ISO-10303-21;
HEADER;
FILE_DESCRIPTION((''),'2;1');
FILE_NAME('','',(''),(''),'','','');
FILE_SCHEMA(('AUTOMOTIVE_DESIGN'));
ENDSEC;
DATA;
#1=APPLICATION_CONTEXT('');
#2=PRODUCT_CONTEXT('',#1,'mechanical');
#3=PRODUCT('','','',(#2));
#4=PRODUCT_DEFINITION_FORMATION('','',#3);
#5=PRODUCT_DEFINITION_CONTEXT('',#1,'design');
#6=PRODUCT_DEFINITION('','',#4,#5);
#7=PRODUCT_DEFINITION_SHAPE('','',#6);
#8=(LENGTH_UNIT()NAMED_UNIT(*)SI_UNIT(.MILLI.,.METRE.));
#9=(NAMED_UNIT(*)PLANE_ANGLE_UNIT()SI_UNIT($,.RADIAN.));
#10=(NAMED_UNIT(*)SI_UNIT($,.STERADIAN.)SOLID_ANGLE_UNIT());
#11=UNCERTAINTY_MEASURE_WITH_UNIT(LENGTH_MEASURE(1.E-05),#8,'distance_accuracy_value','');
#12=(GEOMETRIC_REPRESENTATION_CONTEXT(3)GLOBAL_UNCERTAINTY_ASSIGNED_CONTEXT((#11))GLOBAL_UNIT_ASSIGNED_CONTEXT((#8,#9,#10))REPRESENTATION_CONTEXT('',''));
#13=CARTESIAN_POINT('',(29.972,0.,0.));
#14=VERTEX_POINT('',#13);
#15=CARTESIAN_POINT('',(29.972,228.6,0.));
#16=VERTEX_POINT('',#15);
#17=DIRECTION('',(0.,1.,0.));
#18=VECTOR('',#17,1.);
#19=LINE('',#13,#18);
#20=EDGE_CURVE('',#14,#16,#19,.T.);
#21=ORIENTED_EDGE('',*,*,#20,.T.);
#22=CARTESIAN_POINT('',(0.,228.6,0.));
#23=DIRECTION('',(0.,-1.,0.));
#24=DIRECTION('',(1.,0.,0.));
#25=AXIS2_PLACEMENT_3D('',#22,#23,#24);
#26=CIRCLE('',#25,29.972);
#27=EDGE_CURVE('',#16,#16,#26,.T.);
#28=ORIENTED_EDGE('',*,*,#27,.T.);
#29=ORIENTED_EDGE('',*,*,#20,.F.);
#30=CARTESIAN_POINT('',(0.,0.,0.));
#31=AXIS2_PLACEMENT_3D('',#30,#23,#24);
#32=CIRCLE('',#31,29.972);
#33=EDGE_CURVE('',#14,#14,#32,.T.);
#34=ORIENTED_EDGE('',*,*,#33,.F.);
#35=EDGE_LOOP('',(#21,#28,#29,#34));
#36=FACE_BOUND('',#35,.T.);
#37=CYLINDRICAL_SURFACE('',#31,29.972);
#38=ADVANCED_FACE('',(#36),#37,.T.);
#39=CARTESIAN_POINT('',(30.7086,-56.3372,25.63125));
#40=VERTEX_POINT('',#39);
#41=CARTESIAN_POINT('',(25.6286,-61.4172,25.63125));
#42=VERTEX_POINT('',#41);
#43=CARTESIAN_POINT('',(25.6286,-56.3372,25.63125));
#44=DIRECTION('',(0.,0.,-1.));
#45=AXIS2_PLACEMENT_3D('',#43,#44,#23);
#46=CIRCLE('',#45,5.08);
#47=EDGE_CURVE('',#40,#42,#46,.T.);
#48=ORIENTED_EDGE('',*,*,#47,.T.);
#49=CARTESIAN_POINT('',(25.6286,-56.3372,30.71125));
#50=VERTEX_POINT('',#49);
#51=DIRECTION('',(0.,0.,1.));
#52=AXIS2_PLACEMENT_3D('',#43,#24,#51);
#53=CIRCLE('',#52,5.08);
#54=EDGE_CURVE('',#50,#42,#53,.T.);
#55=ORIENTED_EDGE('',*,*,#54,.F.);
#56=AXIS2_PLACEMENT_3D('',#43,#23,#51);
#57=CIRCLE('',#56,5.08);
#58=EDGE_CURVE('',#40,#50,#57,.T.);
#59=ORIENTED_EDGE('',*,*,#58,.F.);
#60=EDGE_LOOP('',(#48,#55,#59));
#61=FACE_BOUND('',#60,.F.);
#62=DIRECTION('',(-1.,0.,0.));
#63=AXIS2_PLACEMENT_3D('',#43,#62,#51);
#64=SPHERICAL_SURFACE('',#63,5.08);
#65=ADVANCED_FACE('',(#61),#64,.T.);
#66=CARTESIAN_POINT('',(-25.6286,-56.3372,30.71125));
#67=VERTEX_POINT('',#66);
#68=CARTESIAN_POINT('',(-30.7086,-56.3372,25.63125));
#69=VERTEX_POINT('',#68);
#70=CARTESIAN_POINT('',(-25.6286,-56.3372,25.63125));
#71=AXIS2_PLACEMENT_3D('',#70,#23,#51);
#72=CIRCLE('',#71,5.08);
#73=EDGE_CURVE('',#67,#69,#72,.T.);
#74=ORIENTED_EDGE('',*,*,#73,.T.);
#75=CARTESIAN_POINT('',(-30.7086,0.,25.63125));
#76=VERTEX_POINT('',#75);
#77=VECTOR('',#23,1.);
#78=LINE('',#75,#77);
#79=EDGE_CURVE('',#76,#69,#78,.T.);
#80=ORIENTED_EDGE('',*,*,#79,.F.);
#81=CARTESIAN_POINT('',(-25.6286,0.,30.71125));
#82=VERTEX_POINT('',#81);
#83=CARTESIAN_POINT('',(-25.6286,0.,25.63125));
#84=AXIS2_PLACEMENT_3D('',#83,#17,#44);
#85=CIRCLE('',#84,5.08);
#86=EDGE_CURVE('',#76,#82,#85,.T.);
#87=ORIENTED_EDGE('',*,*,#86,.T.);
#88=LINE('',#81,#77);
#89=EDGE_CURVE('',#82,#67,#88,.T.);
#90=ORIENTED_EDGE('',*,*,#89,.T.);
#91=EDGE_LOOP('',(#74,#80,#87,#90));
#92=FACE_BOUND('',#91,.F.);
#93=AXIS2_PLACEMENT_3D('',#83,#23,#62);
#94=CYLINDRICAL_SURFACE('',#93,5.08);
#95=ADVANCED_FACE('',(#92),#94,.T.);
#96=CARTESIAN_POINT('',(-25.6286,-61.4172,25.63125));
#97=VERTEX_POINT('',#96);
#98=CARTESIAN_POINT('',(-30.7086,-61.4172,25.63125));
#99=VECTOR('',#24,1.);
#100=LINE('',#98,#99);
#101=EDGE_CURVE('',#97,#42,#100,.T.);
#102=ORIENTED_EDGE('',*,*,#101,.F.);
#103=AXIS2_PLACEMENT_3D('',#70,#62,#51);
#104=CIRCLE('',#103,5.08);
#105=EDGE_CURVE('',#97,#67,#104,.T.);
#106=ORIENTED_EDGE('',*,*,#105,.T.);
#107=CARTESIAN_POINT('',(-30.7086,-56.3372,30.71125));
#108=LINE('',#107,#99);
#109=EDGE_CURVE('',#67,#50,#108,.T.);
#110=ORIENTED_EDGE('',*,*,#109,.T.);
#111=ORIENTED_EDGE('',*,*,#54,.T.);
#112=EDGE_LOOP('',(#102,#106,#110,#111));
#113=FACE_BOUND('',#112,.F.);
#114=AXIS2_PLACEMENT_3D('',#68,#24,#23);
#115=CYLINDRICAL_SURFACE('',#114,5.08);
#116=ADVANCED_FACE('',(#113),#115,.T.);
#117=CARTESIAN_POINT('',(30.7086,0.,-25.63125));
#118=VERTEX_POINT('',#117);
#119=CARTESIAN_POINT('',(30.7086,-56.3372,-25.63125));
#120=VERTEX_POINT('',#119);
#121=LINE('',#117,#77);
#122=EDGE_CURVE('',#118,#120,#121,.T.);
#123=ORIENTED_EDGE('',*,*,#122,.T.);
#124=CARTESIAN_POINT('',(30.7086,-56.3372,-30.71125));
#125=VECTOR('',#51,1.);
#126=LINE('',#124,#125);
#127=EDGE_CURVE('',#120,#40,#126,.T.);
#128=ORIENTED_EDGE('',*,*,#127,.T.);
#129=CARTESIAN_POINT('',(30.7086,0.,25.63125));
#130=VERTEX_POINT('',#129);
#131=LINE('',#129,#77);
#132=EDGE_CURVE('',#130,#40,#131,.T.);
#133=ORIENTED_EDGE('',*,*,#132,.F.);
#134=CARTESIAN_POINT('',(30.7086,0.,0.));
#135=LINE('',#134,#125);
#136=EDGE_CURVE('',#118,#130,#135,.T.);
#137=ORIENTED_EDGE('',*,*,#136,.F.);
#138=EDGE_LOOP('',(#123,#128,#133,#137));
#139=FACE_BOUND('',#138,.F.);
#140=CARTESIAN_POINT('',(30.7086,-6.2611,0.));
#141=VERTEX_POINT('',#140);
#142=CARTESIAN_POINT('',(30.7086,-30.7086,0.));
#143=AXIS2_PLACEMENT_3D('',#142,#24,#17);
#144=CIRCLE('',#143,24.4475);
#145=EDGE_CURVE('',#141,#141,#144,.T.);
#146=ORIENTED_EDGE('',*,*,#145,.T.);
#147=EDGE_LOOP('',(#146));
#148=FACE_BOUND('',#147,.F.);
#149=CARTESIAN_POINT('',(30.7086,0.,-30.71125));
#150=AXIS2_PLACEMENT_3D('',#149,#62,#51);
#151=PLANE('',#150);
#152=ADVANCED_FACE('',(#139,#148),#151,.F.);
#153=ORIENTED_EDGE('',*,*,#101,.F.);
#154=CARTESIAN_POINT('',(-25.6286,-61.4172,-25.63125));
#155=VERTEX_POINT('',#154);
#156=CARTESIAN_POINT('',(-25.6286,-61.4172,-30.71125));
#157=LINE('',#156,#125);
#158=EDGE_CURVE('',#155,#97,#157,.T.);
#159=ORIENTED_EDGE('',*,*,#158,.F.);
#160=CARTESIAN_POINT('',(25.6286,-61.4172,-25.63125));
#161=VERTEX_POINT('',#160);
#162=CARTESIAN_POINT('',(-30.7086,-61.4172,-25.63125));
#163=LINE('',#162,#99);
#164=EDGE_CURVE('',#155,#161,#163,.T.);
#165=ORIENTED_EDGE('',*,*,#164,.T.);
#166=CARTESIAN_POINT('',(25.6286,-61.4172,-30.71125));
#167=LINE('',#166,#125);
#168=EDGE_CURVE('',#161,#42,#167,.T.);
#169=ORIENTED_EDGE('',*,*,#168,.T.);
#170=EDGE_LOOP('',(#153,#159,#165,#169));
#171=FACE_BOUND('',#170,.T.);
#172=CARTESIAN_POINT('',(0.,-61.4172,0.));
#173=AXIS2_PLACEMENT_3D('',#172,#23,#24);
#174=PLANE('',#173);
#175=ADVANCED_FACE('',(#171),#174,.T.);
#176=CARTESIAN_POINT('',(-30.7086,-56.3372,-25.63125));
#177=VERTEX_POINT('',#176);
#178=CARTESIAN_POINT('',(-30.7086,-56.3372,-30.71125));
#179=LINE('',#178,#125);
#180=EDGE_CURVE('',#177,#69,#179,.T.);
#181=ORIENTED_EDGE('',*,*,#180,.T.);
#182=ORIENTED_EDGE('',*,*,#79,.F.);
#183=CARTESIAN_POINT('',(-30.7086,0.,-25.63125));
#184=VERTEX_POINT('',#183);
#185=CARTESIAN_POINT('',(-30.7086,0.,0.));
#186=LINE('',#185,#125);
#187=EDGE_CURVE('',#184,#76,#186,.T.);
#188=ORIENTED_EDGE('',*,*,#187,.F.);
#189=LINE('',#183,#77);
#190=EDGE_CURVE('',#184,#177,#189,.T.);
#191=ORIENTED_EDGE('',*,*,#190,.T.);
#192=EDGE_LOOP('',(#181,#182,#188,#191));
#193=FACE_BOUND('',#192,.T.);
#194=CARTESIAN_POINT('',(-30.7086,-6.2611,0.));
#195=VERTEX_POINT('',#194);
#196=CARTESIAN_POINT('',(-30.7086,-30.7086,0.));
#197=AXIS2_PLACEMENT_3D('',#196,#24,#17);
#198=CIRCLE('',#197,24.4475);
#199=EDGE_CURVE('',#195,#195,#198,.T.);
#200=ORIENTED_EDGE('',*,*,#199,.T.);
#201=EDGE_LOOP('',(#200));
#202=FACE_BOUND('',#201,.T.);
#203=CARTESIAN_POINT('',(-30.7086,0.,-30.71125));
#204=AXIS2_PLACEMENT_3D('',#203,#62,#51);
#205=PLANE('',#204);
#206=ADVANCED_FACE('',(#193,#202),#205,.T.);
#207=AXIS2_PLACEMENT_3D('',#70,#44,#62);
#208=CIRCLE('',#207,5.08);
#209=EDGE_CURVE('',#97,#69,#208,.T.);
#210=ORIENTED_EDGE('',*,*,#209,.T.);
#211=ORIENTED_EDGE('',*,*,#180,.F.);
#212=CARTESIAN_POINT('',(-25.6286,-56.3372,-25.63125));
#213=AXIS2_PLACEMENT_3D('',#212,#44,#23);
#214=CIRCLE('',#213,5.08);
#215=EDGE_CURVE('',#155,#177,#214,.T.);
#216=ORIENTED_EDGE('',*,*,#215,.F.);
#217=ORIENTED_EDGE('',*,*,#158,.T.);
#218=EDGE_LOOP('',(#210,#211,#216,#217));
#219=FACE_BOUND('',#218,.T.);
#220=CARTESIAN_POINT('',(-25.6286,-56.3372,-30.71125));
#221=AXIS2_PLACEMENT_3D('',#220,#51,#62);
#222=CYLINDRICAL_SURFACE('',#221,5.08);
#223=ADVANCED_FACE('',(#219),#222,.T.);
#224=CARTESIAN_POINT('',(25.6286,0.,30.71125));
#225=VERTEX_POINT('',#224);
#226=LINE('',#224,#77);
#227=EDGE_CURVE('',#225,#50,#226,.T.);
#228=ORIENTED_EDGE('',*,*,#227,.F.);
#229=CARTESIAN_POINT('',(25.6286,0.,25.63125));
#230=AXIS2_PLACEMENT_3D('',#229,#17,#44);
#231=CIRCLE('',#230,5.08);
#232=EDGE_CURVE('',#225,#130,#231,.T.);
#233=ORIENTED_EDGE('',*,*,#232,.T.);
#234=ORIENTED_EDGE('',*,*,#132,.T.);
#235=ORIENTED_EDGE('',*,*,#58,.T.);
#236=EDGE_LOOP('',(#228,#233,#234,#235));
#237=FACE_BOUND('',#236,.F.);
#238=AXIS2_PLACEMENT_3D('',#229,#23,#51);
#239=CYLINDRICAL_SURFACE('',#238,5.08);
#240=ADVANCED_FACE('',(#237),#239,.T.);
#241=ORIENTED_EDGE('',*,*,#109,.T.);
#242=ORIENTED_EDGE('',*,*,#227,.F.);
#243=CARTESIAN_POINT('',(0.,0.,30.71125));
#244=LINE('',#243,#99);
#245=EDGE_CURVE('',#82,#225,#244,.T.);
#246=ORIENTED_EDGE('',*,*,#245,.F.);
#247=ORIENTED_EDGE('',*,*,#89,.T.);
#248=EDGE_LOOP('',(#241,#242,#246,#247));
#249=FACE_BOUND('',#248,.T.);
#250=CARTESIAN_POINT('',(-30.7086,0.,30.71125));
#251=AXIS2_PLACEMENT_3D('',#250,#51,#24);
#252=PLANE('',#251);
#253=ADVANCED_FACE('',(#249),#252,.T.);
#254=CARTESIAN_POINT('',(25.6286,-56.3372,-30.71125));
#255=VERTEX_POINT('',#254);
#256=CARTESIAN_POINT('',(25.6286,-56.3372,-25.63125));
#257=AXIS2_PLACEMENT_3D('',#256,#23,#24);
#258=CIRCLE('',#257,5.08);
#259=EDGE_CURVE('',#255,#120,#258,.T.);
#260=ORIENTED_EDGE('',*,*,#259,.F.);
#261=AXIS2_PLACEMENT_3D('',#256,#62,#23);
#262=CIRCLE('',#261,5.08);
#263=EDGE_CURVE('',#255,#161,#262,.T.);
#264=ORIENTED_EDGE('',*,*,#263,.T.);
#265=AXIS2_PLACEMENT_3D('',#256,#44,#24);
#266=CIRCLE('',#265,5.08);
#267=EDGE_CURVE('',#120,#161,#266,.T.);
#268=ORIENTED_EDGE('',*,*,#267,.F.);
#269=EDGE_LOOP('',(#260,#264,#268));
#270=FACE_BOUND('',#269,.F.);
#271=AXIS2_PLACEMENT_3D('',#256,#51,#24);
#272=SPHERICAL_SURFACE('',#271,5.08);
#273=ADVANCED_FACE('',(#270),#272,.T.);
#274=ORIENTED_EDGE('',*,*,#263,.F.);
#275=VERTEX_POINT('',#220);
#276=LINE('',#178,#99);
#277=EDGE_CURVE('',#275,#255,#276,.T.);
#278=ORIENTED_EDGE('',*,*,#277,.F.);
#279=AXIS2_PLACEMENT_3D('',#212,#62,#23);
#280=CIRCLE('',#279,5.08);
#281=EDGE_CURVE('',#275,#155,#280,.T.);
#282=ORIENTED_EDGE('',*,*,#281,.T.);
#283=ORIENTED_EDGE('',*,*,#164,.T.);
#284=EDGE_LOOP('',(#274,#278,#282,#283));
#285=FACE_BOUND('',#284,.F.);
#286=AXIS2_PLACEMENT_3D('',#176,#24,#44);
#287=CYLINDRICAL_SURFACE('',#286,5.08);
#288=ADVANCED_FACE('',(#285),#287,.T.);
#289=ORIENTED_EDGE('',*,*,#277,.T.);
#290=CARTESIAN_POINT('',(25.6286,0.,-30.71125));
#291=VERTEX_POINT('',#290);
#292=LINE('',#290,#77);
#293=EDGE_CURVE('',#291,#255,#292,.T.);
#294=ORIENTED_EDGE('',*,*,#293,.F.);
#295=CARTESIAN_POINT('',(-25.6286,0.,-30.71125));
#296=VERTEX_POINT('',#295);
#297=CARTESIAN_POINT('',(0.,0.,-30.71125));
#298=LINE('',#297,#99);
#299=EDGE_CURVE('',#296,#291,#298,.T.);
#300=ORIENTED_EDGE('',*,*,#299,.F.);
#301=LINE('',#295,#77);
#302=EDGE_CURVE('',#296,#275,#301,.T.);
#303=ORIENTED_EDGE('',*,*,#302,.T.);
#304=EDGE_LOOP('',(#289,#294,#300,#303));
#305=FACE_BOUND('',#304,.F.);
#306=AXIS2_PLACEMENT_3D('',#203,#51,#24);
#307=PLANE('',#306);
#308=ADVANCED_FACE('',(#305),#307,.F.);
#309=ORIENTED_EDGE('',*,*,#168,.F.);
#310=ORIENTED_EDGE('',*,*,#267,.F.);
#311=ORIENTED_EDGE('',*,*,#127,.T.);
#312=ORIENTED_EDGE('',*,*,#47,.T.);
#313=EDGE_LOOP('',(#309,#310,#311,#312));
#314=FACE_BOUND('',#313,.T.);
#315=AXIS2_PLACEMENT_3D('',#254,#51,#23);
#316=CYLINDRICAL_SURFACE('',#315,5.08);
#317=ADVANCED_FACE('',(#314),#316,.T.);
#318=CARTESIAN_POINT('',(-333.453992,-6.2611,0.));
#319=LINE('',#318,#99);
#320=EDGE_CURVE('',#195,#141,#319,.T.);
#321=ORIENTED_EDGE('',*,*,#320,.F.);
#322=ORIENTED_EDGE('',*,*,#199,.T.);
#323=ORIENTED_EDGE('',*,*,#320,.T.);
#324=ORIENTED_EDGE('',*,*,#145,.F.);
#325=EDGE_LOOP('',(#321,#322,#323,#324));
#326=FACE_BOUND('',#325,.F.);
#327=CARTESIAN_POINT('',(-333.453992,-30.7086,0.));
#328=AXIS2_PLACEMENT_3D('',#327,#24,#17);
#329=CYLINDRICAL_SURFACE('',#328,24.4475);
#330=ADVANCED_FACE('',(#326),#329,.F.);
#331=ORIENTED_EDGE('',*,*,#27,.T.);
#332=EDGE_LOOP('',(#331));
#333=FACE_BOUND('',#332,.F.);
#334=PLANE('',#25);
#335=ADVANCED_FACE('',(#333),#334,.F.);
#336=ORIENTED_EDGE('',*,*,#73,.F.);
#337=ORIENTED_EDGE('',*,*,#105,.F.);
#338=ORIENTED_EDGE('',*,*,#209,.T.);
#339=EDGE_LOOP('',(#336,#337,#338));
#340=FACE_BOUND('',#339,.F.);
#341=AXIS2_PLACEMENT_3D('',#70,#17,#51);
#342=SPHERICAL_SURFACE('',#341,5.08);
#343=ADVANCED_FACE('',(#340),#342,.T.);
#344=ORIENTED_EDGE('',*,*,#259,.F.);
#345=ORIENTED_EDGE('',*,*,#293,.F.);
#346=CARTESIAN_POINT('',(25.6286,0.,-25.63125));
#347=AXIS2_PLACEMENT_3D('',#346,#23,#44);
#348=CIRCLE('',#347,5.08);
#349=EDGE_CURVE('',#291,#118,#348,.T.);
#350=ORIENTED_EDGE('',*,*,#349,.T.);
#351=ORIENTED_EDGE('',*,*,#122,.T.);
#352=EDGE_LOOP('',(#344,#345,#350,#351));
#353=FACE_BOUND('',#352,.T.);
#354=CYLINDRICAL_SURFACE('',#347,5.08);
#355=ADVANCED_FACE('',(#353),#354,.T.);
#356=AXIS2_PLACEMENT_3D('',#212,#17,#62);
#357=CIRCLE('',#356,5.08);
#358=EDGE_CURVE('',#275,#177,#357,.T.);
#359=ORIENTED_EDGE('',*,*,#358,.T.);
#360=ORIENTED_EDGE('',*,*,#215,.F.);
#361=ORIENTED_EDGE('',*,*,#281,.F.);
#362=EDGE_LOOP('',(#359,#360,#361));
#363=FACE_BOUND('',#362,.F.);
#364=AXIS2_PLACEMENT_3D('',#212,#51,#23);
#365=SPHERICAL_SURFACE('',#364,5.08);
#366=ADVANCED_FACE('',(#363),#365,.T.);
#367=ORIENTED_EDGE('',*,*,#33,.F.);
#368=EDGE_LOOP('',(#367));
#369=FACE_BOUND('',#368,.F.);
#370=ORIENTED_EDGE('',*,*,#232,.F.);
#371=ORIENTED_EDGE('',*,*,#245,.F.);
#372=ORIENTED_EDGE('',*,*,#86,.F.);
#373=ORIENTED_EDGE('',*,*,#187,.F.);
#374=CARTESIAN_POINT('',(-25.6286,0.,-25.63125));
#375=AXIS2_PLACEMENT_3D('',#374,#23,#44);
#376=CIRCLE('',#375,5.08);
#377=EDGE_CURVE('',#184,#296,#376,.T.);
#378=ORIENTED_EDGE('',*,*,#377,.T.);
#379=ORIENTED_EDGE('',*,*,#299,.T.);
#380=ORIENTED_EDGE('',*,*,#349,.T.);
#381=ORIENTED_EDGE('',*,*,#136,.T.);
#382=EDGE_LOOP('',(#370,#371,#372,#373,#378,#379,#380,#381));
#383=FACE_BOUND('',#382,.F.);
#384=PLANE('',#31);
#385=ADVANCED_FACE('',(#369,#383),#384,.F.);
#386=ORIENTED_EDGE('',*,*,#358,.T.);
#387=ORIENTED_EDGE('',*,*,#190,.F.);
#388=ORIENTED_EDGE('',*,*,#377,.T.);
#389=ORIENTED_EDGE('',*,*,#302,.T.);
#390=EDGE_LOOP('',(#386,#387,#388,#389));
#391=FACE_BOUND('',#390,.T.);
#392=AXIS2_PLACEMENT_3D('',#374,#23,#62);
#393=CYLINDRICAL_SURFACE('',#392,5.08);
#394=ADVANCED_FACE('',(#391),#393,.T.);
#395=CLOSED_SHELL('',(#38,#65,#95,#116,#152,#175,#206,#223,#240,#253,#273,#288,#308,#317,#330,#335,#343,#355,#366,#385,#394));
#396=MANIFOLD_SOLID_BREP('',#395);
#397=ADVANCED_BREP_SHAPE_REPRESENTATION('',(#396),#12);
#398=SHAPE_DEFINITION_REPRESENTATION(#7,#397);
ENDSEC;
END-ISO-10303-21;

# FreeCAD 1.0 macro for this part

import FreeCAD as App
import Part
import Sketcher
from FreeCAD import Vector
Q = App.Units.Quantity


def edges_at(feature, points):
    """Names of the edges that pass closest to the given points."""
    edges = feature.Shape.Edges
    near = lambda p: min(range(len(edges)), key=lambda i: edges[i].distToShape(Part.Vertex(*p))[0])
    return sorted({f"Edge{near(p) + 1}" for p in points})


def add_polygon(sketch, points):
    """Adds a closed chain of lines whose ends are joined by coincident constraints."""
    first, n = sketch.GeometryCount, len(points)
    for a, b in zip(points, points[1:] + points[:1]):
        sketch.addGeometry(Part.LineSegment(App.Vector(*a, 0), App.Vector(*b, 0)), False)
    for i in range(n):
        sketch.addConstraint(Sketcher.Constraint("Coincident", first + i, 2, first + (i + 1) % n, 1))

doc = App.newDocument("Part")
body = doc.addObject("PartDesign::Body", "Body")

# Sketch on XZ plane
sketch1 = doc.addObject("Sketcher::SketchObject", "Sketch")
body.addObject(sketch1)
sketch1.AttachmentSupport = (doc.XZ_Plane, [""])
sketch1.MapMode = "FlatFace"
sketch1.addGeometry(Part.Circle(Vector(0, 0, 0), Vector(0, 0, 1), 30), False)
sketch1.addConstraint(Sketcher.Constraint("Coincident", 0, 3, -1, 1))
sketch1.addConstraint(Sketcher.Constraint("Diameter", 0, Q("2.36 in")))
pad1 = doc.addObject("PartDesign::Pad", "Pad")
body.addObject(pad1)
pad1.Profile = sketch1
pad1.Length = Q("9 in")
pad1.Reversed = True

# Sketch on XZ plane
sketch2 = doc.addObject("Sketcher::SketchObject", "Sketch001")
body.addObject(sketch2)
sketch2.AttachmentSupport = (doc.XZ_Plane, [""])
sketch2.MapMode = "FlatFace"
add_polygon(sketch2, [(-31, 31), (-31, -31), (31, -31), (31, 31)])  # lines 0-3
sketch2.addConstraint(Sketcher.Constraint("Vertical", 0))
sketch2.addConstraint(Sketcher.Constraint("Horizontal", 1))
sketch2.addConstraint(Sketcher.Constraint("Vertical", 2))
sketch2.addConstraint(Sketcher.Constraint("Horizontal", 3))
sketch2.addConstraint(Sketcher.Constraint("Symmetric", 0, 2, 2, 2, -1, 1))
sketch2.addConstraint(Sketcher.Constraint("DistanceX", 1, 1, 1, 2, Q("2.418 in")))
sketch2.addConstraint(Sketcher.Constraint("DistanceY", 0, 2, 0, 1, 61.4225))
pad2 = doc.addObject("PartDesign::Pad", "Pad001")
body.addObject(pad2)
pad2.Profile = sketch2
pad2.Length = Q("2.418 in")

# Sketch on YZ plane
sketch3 = doc.addObject("Sketcher::SketchObject", "Sketch002")
body.addObject(sketch3)
sketch3.AttachmentSupport = (doc.YZ_Plane, [""])
sketch3.MapMode = "FlatFace"
sketch3.AttachmentOffset = App.Placement(Vector(0, 0, -1.209 * 25.4), App.Rotation())
sketch3.addGeometry(Part.Circle(Vector(-31, 0, 0), Vector(0, 0, 1), 24), False)
sketch3.addConstraint(Sketcher.Constraint("PointOnObject", 0, 3, -1))
sketch3.addConstraint(Sketcher.Constraint("Diameter", 0, Q("1.925 in")))
sketch3.addConstraint(Sketcher.Constraint("DistanceX", 0, 3, -1, 1, Q("1.209 in")))
doc.recompute()
hole = doc.addObject("PartDesign::Hole", "Hole")
body.addObject(hole)
hole.Profile = sketch3
hole.ThreadType = "None"
hole.Diameter = Q("1.925 in")
hole.DepthType = "ThroughAll"
hole.Reversed = True
doc.recompute()

fillet = doc.addObject("PartDesign::Fillet", "Fillet")
body.addObject(fillet)
fillet.Base = (hole, edges_at(hole, [
    (-30.709, -30.709, 30.711),
    (0, -61.417, 30.711),
    (-30.709, -61.417, 0),
    (30.709, -30.709, 30.711),
    (30.709, -61.417, 0),
    (30.709, -30.709, -30.711),
    (0, -61.417, -30.711),
    (-30.709, -30.709, -30.711),
]))
fillet.Radius = Q("0.2 in")

doc.recompute()
